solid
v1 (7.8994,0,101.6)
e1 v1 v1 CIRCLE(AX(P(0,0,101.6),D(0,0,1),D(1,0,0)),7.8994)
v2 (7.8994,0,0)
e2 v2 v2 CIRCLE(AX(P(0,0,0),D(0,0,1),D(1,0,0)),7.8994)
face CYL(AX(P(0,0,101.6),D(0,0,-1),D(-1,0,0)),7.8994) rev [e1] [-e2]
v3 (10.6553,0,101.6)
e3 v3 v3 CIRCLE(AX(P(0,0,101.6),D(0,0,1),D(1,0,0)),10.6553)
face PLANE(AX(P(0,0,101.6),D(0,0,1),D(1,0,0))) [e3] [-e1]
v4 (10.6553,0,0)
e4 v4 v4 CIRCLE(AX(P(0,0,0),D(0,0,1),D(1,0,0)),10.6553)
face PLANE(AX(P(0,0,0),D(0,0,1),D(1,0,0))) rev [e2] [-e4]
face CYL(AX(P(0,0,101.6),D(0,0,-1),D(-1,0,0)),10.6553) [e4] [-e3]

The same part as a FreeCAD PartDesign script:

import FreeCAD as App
import Part
import Sketcher
from FreeCAD import Vector
Q = App.Units.Quantity

doc = App.newDocument("Part")
body = doc.addObject("PartDesign::Body", "Body")

# Sketch on XY plane
sketch1 = body.newObject("Sketcher::SketchObject", "Sketch")
sketch1.AttachmentSupport = (doc.getObject("XY_Plane"), [""])
sketch1.MapMode = "FlatFace"
sketch1.addGeometry(Part.Circle(Vector(0, 0, 0), Vector(0, 0, 1), 11), False)
sketch1.addGeometry(Part.Circle(Vector(0, 0, 0), Vector(0, 0, 1), 8), False)
sketch1.addConstraint(Sketcher.Constraint("Coincident", 0, 3, -1, 1))
sketch1.addConstraint(Sketcher.Constraint("Coincident", 1, 3, -1, 1))
sketch1.addConstraint(Sketcher.Constraint("Diameter", 0, Q("0.839 in")))
sketch1.addConstraint(Sketcher.Constraint("Diameter", 1, Q("0.622 in")))
pad1 = body.newObject("PartDesign::Pad", "Pad")
pad1.Profile = sketch1
pad1.Length = Q("4 in")

doc.recompute()
